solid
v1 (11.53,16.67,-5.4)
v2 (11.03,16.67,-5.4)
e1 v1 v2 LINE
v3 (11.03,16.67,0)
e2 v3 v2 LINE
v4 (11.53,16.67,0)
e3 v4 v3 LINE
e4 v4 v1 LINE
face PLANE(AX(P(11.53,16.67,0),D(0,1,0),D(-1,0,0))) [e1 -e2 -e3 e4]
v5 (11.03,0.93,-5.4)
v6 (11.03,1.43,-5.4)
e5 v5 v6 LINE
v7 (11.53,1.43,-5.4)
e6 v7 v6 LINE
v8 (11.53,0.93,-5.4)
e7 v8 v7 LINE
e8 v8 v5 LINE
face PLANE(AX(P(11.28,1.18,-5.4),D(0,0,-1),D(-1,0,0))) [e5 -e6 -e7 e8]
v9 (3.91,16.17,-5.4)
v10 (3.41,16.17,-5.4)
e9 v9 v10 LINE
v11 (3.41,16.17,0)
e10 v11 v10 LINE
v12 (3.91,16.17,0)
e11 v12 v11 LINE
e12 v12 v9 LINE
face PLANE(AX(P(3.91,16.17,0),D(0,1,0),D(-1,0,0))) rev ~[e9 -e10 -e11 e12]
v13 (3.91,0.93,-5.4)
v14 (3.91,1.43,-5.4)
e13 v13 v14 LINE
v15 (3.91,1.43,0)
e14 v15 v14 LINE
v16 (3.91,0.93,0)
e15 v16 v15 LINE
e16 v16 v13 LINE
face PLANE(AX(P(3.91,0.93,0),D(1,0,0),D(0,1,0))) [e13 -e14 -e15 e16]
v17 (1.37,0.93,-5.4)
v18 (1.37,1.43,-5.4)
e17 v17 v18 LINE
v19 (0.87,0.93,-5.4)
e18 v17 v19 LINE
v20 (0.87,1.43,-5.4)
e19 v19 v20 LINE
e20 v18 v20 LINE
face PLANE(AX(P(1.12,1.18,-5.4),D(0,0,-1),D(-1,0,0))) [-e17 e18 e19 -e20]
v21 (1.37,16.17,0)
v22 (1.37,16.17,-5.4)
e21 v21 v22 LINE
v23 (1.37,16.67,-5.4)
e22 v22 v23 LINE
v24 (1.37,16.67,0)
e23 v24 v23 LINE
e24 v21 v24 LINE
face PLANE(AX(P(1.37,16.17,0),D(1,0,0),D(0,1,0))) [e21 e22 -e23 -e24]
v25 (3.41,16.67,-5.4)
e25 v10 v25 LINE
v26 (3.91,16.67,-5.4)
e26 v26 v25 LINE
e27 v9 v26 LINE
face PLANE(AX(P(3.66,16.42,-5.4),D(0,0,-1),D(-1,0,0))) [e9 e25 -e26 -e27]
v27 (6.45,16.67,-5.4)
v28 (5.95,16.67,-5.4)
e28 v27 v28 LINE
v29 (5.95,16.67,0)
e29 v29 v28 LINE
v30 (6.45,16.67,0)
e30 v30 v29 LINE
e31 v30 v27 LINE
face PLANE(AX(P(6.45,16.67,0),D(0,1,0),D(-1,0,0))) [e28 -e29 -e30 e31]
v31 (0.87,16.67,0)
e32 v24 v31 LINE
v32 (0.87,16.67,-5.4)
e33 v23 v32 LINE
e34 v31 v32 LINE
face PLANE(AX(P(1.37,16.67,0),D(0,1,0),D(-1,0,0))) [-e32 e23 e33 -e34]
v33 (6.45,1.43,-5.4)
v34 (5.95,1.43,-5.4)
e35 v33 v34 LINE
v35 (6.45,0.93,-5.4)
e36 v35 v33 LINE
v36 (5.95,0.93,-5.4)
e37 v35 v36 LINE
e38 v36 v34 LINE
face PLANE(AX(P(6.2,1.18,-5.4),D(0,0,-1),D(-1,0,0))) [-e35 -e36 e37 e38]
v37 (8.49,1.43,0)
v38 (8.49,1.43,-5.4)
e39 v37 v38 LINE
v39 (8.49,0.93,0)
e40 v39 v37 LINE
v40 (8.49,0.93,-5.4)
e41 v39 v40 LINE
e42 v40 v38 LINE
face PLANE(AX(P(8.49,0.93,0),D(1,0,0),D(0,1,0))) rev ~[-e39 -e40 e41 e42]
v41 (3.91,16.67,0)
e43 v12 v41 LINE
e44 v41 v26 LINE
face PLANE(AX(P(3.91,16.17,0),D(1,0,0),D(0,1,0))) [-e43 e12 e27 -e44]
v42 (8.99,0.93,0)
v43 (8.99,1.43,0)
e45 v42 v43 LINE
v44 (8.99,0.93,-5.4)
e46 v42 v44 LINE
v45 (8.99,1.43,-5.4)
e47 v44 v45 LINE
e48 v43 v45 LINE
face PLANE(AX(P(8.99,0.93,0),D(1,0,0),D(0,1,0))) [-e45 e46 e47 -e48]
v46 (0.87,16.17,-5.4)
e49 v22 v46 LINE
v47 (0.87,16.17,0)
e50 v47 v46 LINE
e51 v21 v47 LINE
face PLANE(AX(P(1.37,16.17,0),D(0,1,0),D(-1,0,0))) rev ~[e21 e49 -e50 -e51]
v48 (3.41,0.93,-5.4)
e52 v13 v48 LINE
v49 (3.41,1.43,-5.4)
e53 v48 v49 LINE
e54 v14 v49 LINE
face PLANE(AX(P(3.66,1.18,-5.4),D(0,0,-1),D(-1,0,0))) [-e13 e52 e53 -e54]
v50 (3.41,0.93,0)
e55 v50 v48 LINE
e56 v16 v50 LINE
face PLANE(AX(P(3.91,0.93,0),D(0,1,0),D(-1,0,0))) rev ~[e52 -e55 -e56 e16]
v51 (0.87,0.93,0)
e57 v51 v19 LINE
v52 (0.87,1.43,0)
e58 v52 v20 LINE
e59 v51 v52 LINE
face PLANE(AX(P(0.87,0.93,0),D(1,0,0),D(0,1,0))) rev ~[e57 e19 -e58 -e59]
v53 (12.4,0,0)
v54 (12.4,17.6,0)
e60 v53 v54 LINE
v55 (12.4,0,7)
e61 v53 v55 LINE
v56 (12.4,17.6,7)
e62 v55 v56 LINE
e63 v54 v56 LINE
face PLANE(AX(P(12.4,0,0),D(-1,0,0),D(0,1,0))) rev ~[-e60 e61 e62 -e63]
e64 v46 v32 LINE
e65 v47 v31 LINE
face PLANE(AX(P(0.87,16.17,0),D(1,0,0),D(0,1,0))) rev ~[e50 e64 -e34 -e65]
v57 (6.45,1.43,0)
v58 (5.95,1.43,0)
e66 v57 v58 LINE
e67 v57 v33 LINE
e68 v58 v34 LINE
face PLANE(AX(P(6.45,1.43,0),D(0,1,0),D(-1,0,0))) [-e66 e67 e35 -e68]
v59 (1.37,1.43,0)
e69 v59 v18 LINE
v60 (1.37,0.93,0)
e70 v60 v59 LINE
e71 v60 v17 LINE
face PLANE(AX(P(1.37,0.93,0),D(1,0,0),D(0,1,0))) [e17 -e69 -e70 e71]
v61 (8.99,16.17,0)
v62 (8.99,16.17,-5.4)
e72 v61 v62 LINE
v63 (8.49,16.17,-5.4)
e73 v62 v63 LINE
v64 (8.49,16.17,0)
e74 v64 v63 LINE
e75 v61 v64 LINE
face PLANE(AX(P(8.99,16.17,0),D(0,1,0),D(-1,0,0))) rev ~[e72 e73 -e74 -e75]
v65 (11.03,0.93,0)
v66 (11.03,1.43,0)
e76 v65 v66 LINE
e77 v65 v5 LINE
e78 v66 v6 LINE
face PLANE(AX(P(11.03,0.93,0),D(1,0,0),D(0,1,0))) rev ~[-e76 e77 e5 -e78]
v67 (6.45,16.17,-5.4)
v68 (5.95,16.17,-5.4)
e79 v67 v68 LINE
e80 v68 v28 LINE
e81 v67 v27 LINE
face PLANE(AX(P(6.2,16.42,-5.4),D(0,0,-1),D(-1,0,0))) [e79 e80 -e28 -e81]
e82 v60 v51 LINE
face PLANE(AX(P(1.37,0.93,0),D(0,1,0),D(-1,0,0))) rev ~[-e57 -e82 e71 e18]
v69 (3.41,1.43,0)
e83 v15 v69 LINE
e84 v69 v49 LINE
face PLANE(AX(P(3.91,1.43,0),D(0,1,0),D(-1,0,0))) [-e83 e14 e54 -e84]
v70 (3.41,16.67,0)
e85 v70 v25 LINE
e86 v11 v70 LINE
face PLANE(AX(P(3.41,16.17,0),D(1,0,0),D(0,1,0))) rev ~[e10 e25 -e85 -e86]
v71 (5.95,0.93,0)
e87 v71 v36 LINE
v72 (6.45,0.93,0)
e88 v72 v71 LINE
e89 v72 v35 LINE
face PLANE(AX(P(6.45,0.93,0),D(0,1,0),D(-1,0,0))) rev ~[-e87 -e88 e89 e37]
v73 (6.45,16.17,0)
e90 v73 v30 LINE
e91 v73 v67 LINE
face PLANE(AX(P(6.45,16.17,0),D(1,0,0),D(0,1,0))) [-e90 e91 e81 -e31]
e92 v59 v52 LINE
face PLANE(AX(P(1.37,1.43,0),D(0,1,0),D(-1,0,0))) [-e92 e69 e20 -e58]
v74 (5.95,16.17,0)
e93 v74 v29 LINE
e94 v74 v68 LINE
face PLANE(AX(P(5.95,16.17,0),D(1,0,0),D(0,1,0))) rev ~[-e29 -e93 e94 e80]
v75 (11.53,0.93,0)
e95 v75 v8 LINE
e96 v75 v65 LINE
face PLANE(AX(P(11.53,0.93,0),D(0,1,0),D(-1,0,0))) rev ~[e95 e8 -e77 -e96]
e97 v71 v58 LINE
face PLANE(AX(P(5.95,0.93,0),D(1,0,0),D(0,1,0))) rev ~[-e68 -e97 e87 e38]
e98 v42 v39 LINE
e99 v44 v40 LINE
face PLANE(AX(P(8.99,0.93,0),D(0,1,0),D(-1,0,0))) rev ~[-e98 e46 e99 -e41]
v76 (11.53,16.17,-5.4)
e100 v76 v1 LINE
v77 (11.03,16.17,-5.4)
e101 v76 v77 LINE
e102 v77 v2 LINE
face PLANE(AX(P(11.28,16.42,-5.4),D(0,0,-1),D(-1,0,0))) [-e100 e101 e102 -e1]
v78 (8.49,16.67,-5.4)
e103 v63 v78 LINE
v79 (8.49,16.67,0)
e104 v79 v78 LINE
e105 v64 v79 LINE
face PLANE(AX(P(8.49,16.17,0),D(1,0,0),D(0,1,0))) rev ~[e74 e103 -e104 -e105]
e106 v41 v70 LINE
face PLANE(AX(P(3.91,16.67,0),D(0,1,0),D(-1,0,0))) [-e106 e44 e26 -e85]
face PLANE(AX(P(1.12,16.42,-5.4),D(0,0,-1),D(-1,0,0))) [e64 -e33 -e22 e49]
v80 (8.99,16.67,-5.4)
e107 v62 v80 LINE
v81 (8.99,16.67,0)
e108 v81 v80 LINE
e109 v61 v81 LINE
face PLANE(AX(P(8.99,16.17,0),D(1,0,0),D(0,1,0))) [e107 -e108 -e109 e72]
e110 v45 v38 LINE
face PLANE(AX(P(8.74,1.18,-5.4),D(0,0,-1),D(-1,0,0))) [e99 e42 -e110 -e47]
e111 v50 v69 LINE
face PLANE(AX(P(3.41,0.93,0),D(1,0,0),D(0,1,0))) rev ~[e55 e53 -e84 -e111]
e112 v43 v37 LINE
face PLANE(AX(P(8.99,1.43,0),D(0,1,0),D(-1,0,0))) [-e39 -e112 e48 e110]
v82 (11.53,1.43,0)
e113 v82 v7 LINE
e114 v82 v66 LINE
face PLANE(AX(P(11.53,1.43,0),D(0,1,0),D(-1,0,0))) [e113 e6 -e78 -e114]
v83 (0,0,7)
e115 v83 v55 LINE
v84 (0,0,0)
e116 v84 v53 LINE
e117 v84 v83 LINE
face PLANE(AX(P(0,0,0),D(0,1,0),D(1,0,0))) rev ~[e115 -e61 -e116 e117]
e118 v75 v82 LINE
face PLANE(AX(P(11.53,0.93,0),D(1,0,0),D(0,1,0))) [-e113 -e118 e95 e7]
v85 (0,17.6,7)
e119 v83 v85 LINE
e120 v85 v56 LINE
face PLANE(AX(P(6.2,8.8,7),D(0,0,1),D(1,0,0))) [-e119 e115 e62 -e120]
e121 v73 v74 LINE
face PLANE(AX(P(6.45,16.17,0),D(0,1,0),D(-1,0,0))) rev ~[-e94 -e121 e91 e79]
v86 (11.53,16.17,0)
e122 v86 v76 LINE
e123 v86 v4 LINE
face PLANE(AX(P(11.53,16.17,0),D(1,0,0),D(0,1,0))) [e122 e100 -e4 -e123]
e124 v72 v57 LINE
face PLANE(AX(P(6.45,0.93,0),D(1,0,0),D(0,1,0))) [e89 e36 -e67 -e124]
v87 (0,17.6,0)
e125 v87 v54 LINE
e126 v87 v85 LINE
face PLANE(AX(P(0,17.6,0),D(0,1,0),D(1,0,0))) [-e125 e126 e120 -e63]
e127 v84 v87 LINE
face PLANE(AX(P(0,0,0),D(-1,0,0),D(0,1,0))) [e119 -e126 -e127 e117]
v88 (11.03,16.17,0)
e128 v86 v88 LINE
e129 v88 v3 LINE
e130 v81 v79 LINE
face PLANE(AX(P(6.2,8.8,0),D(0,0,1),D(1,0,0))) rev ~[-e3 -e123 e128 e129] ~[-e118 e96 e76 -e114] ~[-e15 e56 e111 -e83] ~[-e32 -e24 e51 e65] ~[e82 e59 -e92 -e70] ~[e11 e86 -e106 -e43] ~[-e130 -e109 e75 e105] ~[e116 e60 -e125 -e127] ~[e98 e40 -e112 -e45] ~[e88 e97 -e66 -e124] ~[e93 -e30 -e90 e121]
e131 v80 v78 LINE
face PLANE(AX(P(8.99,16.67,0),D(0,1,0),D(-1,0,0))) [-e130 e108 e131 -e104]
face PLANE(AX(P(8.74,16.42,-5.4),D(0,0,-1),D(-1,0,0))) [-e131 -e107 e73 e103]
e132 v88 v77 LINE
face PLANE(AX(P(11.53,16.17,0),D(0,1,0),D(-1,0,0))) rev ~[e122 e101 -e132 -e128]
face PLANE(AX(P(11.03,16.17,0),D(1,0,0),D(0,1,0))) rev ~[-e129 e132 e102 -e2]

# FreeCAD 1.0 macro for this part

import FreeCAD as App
import Part
import Sketcher
from FreeCAD import Vector


def add_polygon(sketch, points):
    """Adds a closed chain of lines whose ends are joined by coincident constraints."""
    first, n = sketch.GeometryCount, len(points)
    for a, b in zip(points, points[1:] + points[:1]):
        sketch.addGeometry(Part.LineSegment(App.Vector(*a, 0), App.Vector(*b, 0)), False)
    for i in range(n):
        sketch.addConstraint(Sketcher.Constraint("Coincident", first + i, 2, first + (i + 1) % n, 1))

doc = App.newDocument("Part")
body = doc.addObject("PartDesign::Body", "Body")

# Sketch on XY plane
sketch1 = body.newObject("Sketcher::SketchObject", "Sketch")
sketch1.AttachmentSupport = (doc.getObject("XY_Plane"), [""])
sketch1.MapMode = "FlatFace"
add_polygon(sketch1, [(0, 18), (0, 0), (12, 0), (12, 18)])  # lines 0-3
sketch1.addConstraint([
    Sketcher.Constraint("Vertical", 0),
    Sketcher.Constraint("Horizontal", 1),
    Sketcher.Constraint("Vertical", 2),
    Sketcher.Constraint("Horizontal", 3),
    Sketcher.Constraint("Coincident", 0, 2, -1, 1),
    Sketcher.Constraint("DistanceX", 1, 1, 1, 2, 12.4),
    Sketcher.Constraint("DistanceY", 0, 2, 0, 1, 17.6),
])
pad1 = body.newObject("PartDesign::Pad", "Pad")
pad1.Profile = sketch1
pad1.Length = 7

# Sketch on XY plane
sketch2 = body.newObject("Sketcher::SketchObject", "Sketch001")
sketch2.AttachmentSupport = (doc.getObject("XY_Plane"), [""])
sketch2.MapMode = "FlatFace"
add_polygon(sketch2, [(6.45, 1.43), (6.45, 0.93), (5.95, 0.93), (5.95, 1.43)])  # lines 0-3
add_polygon(sketch2, [(6.45, 16.67), (6.45, 16.17), (5.95, 16.17), (5.95, 16.67)])  # lines 4-7
sketch2.addConstraint([
    Sketcher.Constraint("Vertical", 0),
    Sketcher.Constraint("Horizontal", 1),
    Sketcher.Constraint("Vertical", 2),
    Sketcher.Constraint("Horizontal", 3),
    Sketcher.Constraint("Vertical", 4),
    Sketcher.Constraint("Horizontal", 5),
    Sketcher.Constraint("Vertical", 6),
    Sketcher.Constraint("Horizontal", 7),
    Sketcher.Constraint("Vertical", 3, 2, 4, 2),
    Sketcher.Constraint("Vertical", 2, 2, 5, 2),
    Sketcher.Constraint("Equal", 7, 0),
    Sketcher.Constraint("Equal", 2, 4),
    Sketcher.Constraint("DistanceX", 1, 2, 1, 1, 0.5),
    Sketcher.Constraint("DistanceX", -1, 1, 0, 2, 6.45),
    Sketcher.Constraint("DistanceY", -1, 1, 0, 2, 0.93),
    Sketcher.Constraint("DistanceY", -1, 1, 4, 2, 16.17),
])
pad2 = body.newObject("PartDesign::Pad", "Pad001")
pad2.Profile = sketch2
pad2.Length = 5.4
pad2.Reversed = True
doc.recompute()

linearpattern = body.newObject("PartDesign::LinearPattern", "LinearPattern")
linearpattern.Originals = [pad2]
linearpattern.Direction = (doc.getObject("X_Axis"), [""])
linearpattern.Mode = "offset"
linearpattern.Offset = 2.54
linearpattern.Occurrences = 3
body.Tip = linearpattern
doc.recompute()

linearpattern2 = body.newObject("PartDesign::LinearPattern", "LinearPattern001")
linearpattern2.Originals = [pad2]
linearpattern2.Direction = (doc.getObject("X_Axis"), [""])
linearpattern2.Mode = "offset"
linearpattern2.Offset = 2.54
linearpattern2.Occurrences = 3
linearpattern2.Reversed = True
body.Tip = linearpattern2

doc.recompute()
